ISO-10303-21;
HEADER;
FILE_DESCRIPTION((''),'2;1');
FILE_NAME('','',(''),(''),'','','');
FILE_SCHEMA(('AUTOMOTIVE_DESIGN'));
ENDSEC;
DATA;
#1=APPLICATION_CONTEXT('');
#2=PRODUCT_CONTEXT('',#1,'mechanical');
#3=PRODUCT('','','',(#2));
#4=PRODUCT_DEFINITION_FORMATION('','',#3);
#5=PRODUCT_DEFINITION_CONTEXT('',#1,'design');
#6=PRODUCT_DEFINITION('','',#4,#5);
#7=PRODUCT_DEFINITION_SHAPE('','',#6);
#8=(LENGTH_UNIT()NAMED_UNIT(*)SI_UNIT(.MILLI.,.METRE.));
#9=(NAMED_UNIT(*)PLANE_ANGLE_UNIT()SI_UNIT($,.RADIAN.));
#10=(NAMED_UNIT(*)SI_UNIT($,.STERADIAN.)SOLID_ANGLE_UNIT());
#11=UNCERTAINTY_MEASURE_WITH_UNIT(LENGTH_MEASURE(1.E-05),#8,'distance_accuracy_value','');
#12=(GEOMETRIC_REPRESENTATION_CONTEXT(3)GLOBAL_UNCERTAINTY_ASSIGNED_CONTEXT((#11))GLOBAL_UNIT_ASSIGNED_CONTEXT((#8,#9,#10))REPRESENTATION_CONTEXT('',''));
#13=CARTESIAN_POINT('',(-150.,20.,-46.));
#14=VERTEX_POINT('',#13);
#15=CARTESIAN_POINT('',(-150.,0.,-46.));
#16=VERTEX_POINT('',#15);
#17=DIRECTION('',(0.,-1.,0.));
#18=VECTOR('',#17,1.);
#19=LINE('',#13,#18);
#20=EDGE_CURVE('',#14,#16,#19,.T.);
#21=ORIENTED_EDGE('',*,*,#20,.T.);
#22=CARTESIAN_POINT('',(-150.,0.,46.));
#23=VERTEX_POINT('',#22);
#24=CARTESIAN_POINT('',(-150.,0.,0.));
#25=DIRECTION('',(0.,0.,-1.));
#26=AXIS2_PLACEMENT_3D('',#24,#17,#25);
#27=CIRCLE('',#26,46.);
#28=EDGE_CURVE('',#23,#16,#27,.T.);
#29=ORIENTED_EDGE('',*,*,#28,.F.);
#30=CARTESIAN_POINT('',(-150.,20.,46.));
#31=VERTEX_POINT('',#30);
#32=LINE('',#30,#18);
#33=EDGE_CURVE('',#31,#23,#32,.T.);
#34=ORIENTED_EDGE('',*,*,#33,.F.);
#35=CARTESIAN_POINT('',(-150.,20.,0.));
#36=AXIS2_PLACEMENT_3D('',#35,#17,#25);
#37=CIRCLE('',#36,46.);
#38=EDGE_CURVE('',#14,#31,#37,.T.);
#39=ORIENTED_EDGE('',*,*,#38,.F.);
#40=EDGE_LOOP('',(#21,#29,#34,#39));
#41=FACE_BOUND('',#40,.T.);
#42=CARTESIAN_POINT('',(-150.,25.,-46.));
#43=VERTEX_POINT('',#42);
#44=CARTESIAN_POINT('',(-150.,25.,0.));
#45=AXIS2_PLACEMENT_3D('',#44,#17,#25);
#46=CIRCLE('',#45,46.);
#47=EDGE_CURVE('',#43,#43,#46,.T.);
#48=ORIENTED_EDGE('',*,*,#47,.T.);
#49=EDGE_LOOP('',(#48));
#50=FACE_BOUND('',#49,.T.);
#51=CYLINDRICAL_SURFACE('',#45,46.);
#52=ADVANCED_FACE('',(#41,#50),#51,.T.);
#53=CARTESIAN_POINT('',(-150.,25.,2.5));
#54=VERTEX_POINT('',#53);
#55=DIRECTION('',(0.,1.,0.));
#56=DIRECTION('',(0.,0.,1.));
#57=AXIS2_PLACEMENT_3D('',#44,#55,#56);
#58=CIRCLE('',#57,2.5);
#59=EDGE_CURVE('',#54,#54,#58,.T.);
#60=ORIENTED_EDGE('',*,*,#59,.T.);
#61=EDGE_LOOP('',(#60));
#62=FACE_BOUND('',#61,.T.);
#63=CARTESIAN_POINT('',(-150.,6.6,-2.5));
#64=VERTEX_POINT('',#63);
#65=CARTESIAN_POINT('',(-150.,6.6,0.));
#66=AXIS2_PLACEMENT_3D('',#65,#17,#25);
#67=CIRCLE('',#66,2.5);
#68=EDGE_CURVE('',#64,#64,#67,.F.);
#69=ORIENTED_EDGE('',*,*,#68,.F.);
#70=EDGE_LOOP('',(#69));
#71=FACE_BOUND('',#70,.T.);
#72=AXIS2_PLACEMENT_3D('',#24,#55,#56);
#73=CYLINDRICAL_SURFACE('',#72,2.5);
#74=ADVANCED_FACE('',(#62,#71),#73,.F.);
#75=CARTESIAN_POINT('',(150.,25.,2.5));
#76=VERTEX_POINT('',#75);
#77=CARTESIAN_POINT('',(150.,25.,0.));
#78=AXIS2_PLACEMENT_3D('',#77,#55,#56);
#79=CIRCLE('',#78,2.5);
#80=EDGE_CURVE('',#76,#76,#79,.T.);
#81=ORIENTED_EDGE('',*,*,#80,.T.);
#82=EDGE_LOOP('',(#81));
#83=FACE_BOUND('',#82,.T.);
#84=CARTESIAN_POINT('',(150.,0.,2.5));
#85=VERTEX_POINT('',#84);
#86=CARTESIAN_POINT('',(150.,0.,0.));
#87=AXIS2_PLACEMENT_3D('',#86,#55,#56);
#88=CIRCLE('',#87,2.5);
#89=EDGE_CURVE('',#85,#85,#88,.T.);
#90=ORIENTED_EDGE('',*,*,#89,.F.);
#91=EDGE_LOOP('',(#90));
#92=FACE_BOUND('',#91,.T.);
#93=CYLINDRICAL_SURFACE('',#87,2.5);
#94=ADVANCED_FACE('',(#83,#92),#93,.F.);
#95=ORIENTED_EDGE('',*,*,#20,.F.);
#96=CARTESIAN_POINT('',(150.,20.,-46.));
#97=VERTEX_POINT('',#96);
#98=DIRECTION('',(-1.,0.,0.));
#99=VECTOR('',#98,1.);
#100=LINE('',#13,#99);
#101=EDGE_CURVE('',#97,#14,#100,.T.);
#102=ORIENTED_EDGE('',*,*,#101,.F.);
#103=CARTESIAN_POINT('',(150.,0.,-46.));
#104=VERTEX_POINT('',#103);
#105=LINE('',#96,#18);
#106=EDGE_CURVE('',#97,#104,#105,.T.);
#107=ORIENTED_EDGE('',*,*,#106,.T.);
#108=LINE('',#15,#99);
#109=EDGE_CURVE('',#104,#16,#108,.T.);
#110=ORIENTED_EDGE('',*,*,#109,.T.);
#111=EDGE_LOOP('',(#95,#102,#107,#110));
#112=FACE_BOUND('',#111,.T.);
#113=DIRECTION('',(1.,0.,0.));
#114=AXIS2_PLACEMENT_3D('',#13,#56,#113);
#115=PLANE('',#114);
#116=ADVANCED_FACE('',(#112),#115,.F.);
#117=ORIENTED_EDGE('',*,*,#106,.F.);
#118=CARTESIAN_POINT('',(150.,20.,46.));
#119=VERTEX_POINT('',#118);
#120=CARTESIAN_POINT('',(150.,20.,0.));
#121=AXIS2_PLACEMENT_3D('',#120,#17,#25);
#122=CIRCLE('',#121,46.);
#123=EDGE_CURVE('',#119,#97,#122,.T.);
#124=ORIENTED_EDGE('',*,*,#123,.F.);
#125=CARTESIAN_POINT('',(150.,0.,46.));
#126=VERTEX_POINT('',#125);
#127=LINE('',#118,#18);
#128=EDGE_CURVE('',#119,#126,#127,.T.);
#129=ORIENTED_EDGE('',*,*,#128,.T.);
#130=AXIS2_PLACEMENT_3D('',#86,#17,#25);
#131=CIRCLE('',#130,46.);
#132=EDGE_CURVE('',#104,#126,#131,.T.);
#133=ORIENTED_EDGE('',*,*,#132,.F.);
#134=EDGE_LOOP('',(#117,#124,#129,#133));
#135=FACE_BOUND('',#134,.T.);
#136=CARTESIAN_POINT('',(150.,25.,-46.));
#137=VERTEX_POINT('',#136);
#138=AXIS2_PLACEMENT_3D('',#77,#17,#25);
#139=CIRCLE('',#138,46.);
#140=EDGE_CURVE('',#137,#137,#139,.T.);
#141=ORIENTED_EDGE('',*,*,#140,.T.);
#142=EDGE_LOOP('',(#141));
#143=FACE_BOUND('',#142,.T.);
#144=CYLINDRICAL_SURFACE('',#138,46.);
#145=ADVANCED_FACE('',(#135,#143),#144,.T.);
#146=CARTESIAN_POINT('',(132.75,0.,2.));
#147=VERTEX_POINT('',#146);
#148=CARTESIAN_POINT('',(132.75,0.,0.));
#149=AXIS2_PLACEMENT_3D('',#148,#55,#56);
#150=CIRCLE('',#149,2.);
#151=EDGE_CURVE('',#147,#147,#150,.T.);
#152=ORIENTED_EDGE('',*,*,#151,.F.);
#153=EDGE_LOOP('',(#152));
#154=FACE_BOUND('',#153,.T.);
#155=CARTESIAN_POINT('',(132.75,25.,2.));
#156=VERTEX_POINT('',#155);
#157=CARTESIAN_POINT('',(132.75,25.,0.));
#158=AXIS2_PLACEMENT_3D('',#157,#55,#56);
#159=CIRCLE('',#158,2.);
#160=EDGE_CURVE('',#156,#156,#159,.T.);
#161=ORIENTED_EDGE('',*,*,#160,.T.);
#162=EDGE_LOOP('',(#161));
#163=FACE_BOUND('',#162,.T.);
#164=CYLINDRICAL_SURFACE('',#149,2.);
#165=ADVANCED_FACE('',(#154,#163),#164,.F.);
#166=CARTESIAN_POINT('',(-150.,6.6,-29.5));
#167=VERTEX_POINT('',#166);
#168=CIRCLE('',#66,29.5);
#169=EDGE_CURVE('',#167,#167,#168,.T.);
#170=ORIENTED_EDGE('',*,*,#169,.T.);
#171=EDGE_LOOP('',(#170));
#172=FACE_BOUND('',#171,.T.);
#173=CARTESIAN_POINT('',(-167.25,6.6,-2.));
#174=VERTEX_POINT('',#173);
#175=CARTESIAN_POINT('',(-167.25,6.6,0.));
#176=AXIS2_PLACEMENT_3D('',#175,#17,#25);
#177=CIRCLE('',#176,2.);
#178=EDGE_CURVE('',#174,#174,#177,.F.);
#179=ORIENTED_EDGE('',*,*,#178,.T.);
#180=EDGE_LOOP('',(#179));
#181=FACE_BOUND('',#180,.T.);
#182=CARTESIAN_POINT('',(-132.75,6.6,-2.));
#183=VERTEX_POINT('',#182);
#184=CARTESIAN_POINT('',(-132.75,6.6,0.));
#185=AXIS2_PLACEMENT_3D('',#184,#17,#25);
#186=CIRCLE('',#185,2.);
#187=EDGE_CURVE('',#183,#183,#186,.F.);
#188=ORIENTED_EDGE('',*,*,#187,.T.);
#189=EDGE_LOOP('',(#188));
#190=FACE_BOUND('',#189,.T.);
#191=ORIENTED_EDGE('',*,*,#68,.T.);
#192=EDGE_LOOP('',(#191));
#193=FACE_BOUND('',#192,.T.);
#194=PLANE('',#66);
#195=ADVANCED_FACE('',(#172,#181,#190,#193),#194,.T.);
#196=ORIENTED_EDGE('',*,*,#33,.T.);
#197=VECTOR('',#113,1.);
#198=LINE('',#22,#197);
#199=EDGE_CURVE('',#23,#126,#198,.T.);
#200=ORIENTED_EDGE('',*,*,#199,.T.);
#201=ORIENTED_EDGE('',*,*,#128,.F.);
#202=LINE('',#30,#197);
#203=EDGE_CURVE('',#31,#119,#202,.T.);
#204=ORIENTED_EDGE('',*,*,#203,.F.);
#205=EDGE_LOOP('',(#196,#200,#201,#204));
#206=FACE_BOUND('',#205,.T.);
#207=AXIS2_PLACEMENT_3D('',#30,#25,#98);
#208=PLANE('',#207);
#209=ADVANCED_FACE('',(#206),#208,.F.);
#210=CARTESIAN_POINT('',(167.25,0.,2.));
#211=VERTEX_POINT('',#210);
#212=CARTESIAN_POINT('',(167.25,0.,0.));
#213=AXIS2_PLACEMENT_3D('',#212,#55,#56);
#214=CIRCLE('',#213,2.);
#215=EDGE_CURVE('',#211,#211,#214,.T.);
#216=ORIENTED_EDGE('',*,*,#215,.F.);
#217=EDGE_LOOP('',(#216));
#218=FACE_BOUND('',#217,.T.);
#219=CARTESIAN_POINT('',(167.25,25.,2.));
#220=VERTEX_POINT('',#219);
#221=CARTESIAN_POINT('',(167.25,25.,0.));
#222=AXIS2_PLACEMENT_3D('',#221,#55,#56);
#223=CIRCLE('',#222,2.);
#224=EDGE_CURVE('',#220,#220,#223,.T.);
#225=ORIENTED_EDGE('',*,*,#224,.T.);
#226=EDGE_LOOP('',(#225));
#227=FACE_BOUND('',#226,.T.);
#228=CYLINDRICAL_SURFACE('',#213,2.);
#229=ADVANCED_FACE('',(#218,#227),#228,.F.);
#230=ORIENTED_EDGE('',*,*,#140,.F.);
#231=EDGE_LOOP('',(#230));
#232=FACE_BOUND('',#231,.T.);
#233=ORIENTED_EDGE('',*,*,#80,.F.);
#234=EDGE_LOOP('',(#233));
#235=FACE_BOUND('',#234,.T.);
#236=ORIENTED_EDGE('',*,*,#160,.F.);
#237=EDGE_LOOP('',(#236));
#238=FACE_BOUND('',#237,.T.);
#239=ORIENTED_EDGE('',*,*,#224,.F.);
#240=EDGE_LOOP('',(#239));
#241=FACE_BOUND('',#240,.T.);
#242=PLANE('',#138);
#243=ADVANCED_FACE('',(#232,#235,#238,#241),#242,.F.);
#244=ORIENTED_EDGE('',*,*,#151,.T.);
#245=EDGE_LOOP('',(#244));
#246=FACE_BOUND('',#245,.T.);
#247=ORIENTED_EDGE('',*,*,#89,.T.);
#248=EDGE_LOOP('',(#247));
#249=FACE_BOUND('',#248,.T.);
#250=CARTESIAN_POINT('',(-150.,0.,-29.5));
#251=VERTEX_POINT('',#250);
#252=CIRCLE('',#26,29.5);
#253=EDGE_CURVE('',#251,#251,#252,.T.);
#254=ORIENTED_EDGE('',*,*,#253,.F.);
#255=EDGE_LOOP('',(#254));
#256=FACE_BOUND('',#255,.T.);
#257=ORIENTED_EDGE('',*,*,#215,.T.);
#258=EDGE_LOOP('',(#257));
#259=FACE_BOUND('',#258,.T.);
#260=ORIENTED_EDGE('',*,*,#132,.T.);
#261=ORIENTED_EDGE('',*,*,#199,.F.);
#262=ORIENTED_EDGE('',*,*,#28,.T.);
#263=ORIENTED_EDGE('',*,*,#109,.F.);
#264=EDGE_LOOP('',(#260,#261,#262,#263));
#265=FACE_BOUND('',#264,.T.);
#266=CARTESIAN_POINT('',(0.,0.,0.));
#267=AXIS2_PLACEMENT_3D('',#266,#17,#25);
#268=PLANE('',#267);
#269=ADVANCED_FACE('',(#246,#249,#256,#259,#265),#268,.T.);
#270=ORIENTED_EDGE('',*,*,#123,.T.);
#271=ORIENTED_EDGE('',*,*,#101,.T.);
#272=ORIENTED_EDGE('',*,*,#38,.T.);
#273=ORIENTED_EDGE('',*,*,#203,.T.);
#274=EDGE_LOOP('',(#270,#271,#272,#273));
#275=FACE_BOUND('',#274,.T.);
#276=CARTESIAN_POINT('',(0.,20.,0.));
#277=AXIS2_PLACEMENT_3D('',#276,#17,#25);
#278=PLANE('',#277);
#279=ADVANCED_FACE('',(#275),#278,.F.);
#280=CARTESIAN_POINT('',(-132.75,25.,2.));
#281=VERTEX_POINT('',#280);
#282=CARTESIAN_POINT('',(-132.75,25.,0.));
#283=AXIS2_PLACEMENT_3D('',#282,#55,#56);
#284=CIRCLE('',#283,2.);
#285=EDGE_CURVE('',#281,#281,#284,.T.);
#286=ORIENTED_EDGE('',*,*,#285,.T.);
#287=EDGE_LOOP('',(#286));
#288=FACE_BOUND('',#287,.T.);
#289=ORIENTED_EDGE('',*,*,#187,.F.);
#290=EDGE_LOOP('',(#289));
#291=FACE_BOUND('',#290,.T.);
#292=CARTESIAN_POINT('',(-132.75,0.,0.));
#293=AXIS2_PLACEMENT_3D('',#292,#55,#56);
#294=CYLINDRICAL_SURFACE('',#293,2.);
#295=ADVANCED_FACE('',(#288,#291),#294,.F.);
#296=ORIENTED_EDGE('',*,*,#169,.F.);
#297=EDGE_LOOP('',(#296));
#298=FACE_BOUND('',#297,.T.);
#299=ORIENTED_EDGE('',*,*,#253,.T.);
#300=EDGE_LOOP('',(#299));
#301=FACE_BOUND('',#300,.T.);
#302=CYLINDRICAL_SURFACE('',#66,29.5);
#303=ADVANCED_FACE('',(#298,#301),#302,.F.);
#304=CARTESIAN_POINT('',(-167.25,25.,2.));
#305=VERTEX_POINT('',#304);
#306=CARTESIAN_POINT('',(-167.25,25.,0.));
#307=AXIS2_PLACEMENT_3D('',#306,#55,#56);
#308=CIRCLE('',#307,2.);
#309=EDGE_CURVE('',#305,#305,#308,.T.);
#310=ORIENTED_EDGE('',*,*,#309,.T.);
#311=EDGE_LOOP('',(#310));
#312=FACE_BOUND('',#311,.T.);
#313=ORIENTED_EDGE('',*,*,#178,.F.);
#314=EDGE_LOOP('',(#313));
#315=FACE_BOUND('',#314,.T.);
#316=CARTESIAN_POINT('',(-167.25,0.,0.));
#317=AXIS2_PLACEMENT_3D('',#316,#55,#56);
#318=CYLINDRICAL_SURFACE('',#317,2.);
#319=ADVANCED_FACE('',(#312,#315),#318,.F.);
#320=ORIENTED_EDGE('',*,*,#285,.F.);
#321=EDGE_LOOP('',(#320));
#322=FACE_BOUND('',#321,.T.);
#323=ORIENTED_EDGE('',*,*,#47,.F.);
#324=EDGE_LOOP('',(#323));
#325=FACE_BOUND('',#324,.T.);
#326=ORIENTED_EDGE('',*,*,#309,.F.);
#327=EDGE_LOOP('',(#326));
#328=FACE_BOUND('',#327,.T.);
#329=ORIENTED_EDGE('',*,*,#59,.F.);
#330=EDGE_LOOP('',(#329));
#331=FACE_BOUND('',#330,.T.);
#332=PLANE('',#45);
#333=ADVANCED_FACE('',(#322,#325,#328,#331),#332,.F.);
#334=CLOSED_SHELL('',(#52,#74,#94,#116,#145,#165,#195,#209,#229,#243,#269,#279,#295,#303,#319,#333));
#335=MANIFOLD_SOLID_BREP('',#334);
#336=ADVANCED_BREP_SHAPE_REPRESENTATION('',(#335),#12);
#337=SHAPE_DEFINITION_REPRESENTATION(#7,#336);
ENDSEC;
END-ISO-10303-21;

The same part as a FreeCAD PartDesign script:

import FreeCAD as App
import Part
import Sketcher

V = App.Vector

doc = App.newDocument("Part")
body = doc.addObject("PartDesign::Body", "Body")

# Sketch on XZ plane
sketch1 = doc.addObject("Sketcher::SketchObject", "Sketch")
body.addObject(sketch1)
sketch1.AttachmentSupport = (doc.XZ_Plane, [""])
sketch1.MapMode = "FlatFace"
sketch1.addGeometry(Part.LineSegment(V(-150, -46, 0), V(-150, 46, 0)), False)
sketch1.addGeometry(Part.LineSegment(V(-150, 46, 0), V(150, 46, 0)), False)
sketch1.addGeometry(Part.LineSegment(V(150, 46, 0), V(150, -46, 0)), False)
sketch1.addGeometry(Part.LineSegment(V(150, -46, 0), V(-150, -46, 0)), False)
sketch1.addConstraint(Sketcher.Constraint("Coincident", 0, 2, 1, 1))
sketch1.addConstraint(Sketcher.Constraint("Coincident", 1, 2, 2, 1))
sketch1.addConstraint(Sketcher.Constraint("Coincident", 2, 2, 3, 1))
sketch1.addConstraint(Sketcher.Constraint("Coincident", 3, 2, 0, 1))
sketch1.addConstraint(Sketcher.Constraint("Vertical", 0))
sketch1.addConstraint(Sketcher.Constraint("Horizontal", 1))
sketch1.addConstraint(Sketcher.Constraint("Vertical", 2))
sketch1.addConstraint(Sketcher.Constraint("Horizontal", 3))
sketch1.addConstraint(Sketcher.Constraint("Symmetric", 0, 2, 2, 2, -1, 1))
sketch1.addConstraint(Sketcher.Constraint("DistanceX", 1, 1, 1, 2, 300.0))
sketch1.addConstraint(Sketcher.Constraint("DistanceY", 0, 1, 0, 2, 92.0))
pad1 = doc.addObject("PartDesign::Pad", "Pad")
body.addObject(pad1)
pad1.Profile = sketch1
pad1.Length = 20
pad1.Reversed = True

# Sketch on XZ plane
sketch2 = doc.addObject("Sketcher::SketchObject", "Sketch001")
body.addObject(sketch2)
sketch2.AttachmentSupport = (doc.XZ_Plane, [""])
sketch2.MapMode = "FlatFace"
sketch2.addGeometry(Part.Circle(V(-150, 0, 0), V(0, 0, 1), 46), False)
sketch2.addGeometry(Part.Circle(V(150, 0, 0), V(0, 0, 1), 46), False)
sketch2.addConstraint(Sketcher.Constraint("Equal", 0, 1))
sketch2.addConstraint(Sketcher.Constraint("Symmetric", 0, 3, 1, 3, -1, 1))
sketch2.addConstraint(Sketcher.Constraint("PointOnObject", 0, 3, -1))
sketch2.addConstraint(Sketcher.Constraint("Diameter", 0, 92.0))
sketch2.addConstraint(Sketcher.Constraint("DistanceX", 0, 3, -1, 1, 150.0))
pad2 = doc.addObject("PartDesign::Pad", "Pad001")
body.addObject(pad2)
pad2.Profile = sketch2
pad2.Length = 25
pad2.Reversed = True

# Sketch on XZ plane
sketch3 = doc.addObject("Sketcher::SketchObject", "Sketch002")
body.addObject(sketch3)
sketch3.AttachmentSupport = (doc.XZ_Plane, [""])
sketch3.MapMode = "FlatFace"
sketch3.AttachmentOffset = App.Placement(V(0, 0, -25), App.Rotation())
sketch3.addGeometry(Part.Circle(V(150, 0, 0), V(0, 0, 1), 2.5), False)
sketch3.addGeometry(Part.Circle(V(167.2, 0, 0), V(0, 0, 1), 2), False)
sketch3.addGeometry(Part.Circle(V(132.8, 0, 0), V(0, 0, 1), 2), False)
sketch3.addConstraint(Sketcher.Constraint("Equal", 1, 2))
sketch3.addConstraint(Sketcher.Constraint("PointOnObject", 0, 3, -1))
sketch3.addConstraint(Sketcher.Constraint("PointOnObject", 1, 3, -1))
sketch3.addConstraint(Sketcher.Constraint("PointOnObject", 2, 3, -1))
sketch3.addConstraint(Sketcher.Constraint("Diameter", 0, 5.0))
sketch3.addConstraint(Sketcher.Constraint("Diameter", 1, 4.0))
sketch3.addConstraint(Sketcher.Constraint("DistanceX", -1, 1, 0, 3, 150.0))
sketch3.addConstraint(Sketcher.Constraint("DistanceX", 2, 3, 1, 3, 34.5))
sketch3.addConstraint(Sketcher.Constraint("DistanceX", -1, 1, 1, 3, 167.25))
pocket1 = doc.addObject("PartDesign::Pocket", "Pocket")
body.addObject(pocket1)
pocket1.Profile = sketch3
pocket1.Type = "ThroughAll"
pocket1.Reversed = True

# Sketch on XZ plane
sketch4 = doc.addObject("Sketcher::SketchObject", "Sketch003")
body.addObject(sketch4)
sketch4.AttachmentSupport = (doc.XZ_Plane, [""])
sketch4.MapMode = "FlatFace"
sketch4.AttachmentOffset = App.Placement(V(0, 0, -25), App.Rotation())
sketch4.addGeometry(Part.Circle(V(-150, 0, 0), V(0, 0, 1), 2.5), False)
sketch4.addGeometry(Part.Circle(V(-132.8, 0, 0), V(0, 0, 1), 2), False)
sketch4.addGeometry(Part.Circle(V(-167.2, 0, 0), V(0, 0, 1), 2), False)
sketch4.addConstraint(Sketcher.Constraint("Equal", 1, 2))
sketch4.addConstraint(Sketcher.Constraint("PointOnObject", 0, 3, -1))
sketch4.addConstraint(Sketcher.Constraint("PointOnObject", 1, 3, -1))
sketch4.addConstraint(Sketcher.Constraint("PointOnObject", 2, 3, -1))
sketch4.addConstraint(Sketcher.Constraint("Diameter", 0, 5.0))
sketch4.addConstraint(Sketcher.Constraint("Diameter", 1, 4.0))
sketch4.addConstraint(Sketcher.Constraint("DistanceX", 0, 3, -1, 1, 150.0))
sketch4.addConstraint(Sketcher.Constraint("DistanceX", 2, 3, 1, 3, 34.5))
sketch4.addConstraint(Sketcher.Constraint("DistanceX", 1, 3, -1, 1, 132.75))
pocket2 = doc.addObject("PartDesign::Pocket", "Pocket001")
body.addObject(pocket2)
pocket2.Profile = sketch4
pocket2.Type = "ThroughAll"
pocket2.Reversed = True

# Sketch on XZ plane
sketch5 = doc.addObject("Sketcher::SketchObject", "Sketch004")
body.addObject(sketch5)
sketch5.AttachmentSupport = (doc.XZ_Plane, [""])
sketch5.MapMode = "FlatFace"
sketch5.addGeometry(Part.Circle(V(-150, 0, 0), V(0, 0, 1), 30), False)
sketch5.addConstraint(Sketcher.Constraint("PointOnObject", 0, 3, -1))
sketch5.addConstraint(Sketcher.Constraint("Diameter", 0, 59.0))
sketch5.addConstraint(Sketcher.Constraint("DistanceX", 0, 3, -1, 1, 150.0))
pocket3 = doc.addObject("PartDesign::Pocket", "Pocket002")
body.addObject(pocket3)
pocket3.Profile = sketch5
pocket3.Length = 6.6

doc.recompute()
